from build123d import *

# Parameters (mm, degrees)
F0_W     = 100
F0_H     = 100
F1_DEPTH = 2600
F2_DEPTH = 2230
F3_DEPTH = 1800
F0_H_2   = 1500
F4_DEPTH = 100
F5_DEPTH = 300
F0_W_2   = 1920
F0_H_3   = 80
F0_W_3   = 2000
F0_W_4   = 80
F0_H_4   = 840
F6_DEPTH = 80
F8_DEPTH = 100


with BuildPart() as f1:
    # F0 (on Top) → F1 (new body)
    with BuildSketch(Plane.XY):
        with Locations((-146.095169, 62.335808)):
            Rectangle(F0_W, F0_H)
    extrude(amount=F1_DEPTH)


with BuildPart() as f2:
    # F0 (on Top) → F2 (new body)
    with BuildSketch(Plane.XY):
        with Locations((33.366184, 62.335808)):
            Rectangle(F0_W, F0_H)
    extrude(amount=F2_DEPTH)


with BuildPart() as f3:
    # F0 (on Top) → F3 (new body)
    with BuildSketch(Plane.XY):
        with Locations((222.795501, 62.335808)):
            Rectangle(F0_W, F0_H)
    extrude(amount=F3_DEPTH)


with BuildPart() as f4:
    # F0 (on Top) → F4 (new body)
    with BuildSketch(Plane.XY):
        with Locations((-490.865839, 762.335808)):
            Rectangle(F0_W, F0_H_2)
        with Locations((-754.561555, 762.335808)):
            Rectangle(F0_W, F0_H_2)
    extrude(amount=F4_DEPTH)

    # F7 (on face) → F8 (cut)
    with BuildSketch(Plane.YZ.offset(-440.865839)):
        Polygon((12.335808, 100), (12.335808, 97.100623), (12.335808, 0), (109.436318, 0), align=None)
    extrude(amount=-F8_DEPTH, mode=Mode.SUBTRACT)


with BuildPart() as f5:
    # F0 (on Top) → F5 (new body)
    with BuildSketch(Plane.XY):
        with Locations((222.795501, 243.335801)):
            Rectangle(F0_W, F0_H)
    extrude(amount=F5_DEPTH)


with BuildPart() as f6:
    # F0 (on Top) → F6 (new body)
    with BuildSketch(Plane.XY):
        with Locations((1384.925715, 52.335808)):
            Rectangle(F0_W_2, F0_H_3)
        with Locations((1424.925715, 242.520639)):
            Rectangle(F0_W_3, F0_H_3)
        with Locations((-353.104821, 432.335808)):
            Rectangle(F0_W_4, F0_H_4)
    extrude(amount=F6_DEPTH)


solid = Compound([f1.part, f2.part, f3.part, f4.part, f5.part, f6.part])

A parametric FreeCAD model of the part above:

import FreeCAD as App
import Part
import Sketcher

V = App.Vector
Q = App.Units.Quantity


def add_polygon(sketch, points):
    """Adds a closed chain of lines whose ends are joined by coincident constraints."""
    first, n = sketch.GeometryCount, len(points)
    for a, b in zip(points, points[1:] + points[:1]):
        sketch.addGeometry(Part.LineSegment(App.Vector(*a, 0), App.Vector(*b, 0)), False)
    for i in range(n):
        sketch.addConstraint(Sketcher.Constraint("Coincident", first + i, 2, first + (i + 1) % n, 1))

doc = App.newDocument("Part")
body = doc.addObject("PartDesign::Body", "Body")

sketch1 = body.newObject("Sketcher::SketchObject", "Sketch")
sketch1.AttachmentSupport = (doc.getObject("XY_Plane"), [""])
sketch1.MapMode = "FlatFace"
add_polygon(sketch1, [(-196, 112), (-196, 12), (-96, 12), (-96, 112)])
sketch1.addConstraint(Sketcher.Constraint("Vertical", 0))
sketch1.addConstraint(Sketcher.Constraint("Horizontal", 1))
sketch1.addConstraint(Sketcher.Constraint("Vertical", 2))
sketch1.addConstraint(Sketcher.Constraint("Horizontal", 3))
sketch1.addConstraint(Sketcher.Constraint("Equal", 3, 0))
sketch1.addConstraint(Sketcher.Constraint("DistanceX", 1, 1, 1, 2, Q("100 mm")))
sketch1.addConstraint(Sketcher.Constraint("DistanceX", 0, 2, -1, 1, Q("196.095169 mm")))
sketch1.addConstraint(Sketcher.Constraint("DistanceY", -1, 1, 2, 2, Q("112.335808 mm")))
pad1 = body.newObject("PartDesign::Pad", "Pad")
pad1.Profile = sketch1
pad1.Length = 2600
body2 = doc.addObject("PartDesign::Body", "Body001")

sketch2 = body2.newObject("Sketcher::SketchObject", "Sketch001")
sketch2.AttachmentSupport = (doc.getObject("XY_Plane001"), [""])
sketch2.MapMode = "FlatFace"
add_polygon(sketch2, [(-17, 112), (-17, 12), (83, 12), (83, 112)])
sketch2.addConstraint(Sketcher.Constraint("Vertical", 0))
sketch2.addConstraint(Sketcher.Constraint("Horizontal", 1))
sketch2.addConstraint(Sketcher.Constraint("Vertical", 2))
sketch2.addConstraint(Sketcher.Constraint("Horizontal", 3))
sketch2.addConstraint(Sketcher.Constraint("Equal", 3, 0))
sketch2.addConstraint(Sketcher.Constraint("DistanceX", 1, 1, 1, 2, Q("100 mm")))
sketch2.addConstraint(Sketcher.Constraint("DistanceY", -1, 1, 2, 2, Q("112.335808 mm")))
sketch2.addConstraint(Sketcher.Constraint("DistanceX", 0, 2, -1, 1, Q("16.633816 mm")))
pad2 = body2.newObject("PartDesign::Pad", "Pad001")
pad2.Profile = sketch2
pad2.Length = 2230
body3 = doc.addObject("PartDesign::Body", "Body002")

sketch3 = body3.newObject("Sketcher::SketchObject", "Sketch002")
sketch3.AttachmentSupport = (doc.getObject("XY_Plane002"), [""])
sketch3.MapMode = "FlatFace"
add_polygon(sketch3, [(173, 112), (173, 12), (273, 12), (273, 112)])
sketch3.addConstraint(Sketcher.Constraint("Vertical", 0))
sketch3.addConstraint(Sketcher.Constraint("Horizontal", 1))
sketch3.addConstraint(Sketcher.Constraint("Vertical", 2))
sketch3.addConstraint(Sketcher.Constraint("Horizontal", 3))
sketch3.addConstraint(Sketcher.Constraint("Equal", 3, 0))
sketch3.addConstraint(Sketcher.Constraint("DistanceX", 1, 1, 1, 2, Q("100 mm")))
sketch3.addConstraint(Sketcher.Constraint("DistanceX", -1, 1, 0, 2, Q("172.795501 mm")))
sketch3.addConstraint(Sketcher.Constraint("DistanceY", -1, 1, 2, 2, Q("112.335808 mm")))
pad3 = body3.newObject("PartDesign::Pad", "Pad002")
pad3.Profile = sketch3
pad3.Length = 1800
body4 = doc.addObject("PartDesign::Body", "Body003")
body4.AllowCompound = True

sketch4 = body4.newObject("Sketcher::SketchObject", "Sketch003")
sketch4.AttachmentSupport = (doc.getObject("XY_Plane003"), [""])
sketch4.MapMode = "FlatFace"
add_polygon(sketch4, [(-541, 1512), (-541, 12), (-441, 12), (-441, 1512)])
add_polygon(sketch4, [(-805, 1512), (-805, 12), (-705, 12), (-705, 1512)])
sketch4.addConstraint(Sketcher.Constraint("Vertical", 0))
sketch4.addConstraint(Sketcher.Constraint("Horizontal", 1))
sketch4.addConstraint(Sketcher.Constraint("Vertical", 2))
sketch4.addConstraint(Sketcher.Constraint("Horizontal", 3))
sketch4.addConstraint(Sketcher.Constraint("Vertical", 4))
sketch4.addConstraint(Sketcher.Constraint("Horizontal", 5))
sketch4.addConstraint(Sketcher.Constraint("Vertical", 6))
sketch4.addConstraint(Sketcher.Constraint("Horizontal", 7))
sketch4.addConstraint(Sketcher.Constraint("Horizontal", 1, 2, 4, 2))
sketch4.addConstraint(Sketcher.Constraint("Horizontal", 3, 2, 6, 2))
sketch4.addConstraint(Sketcher.Constraint("Equal", 3, 5))
sketch4.addConstraint(Sketcher.Constraint("DistanceX", 1, 1, 1, 2, Q("100 mm")))
sketch4.addConstraint(Sketcher.Constraint("DistanceY", 0, 2, 0, 1, Q("1500 mm")))
sketch4.addConstraint(Sketcher.Constraint("DistanceX", 0, 2, -1, 1, Q("540.865839 mm")))
sketch4.addConstraint(Sketcher.Constraint("DistanceY", -1, 1, 2, 2, Q("1512.335808 mm")))
sketch4.addConstraint(Sketcher.Constraint("DistanceX", 4, 2, -1, 1, Q("804.561555 mm")))
pad4 = body4.newObject("PartDesign::Pad", "Pad003")
pad4.Profile = sketch4
pad4.Length = 100

sketch5 = body4.newObject("Sketcher::SketchObject", "Sketch004")
sketch5.AttachmentSupport = (doc.getObject("YZ_Plane003"), [""])
sketch5.MapMode = "FlatFace"
sketch5.AttachmentOffset = App.Placement(V(0, 0, -440.865839), App.Rotation())
add_polygon(sketch5, [(12, 100), (12, 0), (109, 0)])
sketch5.addConstraint(Sketcher.Constraint("Vertical", 0))
sketch5.addConstraint(Sketcher.Constraint("Horizontal", 1))
sketch5.addConstraint(Sketcher.Constraint("PointOnObject", 0, 2, -1))
sketch5.addConstraint(Sketcher.Constraint("DistanceY", 0, 2, 0, 1, Q("100 mm")))
sketch5.addConstraint(Sketcher.Constraint("DistanceX", 1, 1, 1, 2, Q("97.10051 mm")))
sketch5.addConstraint(Sketcher.Constraint("DistanceX", -1, 1, 1, 2, Q("109.436318 mm")))
pocket1 = body4.newObject("PartDesign::Pocket", "Pocket")
pocket1.Profile = sketch5
pocket1.Length = 100
body5 = doc.addObject("PartDesign::Body", "Body004")

sketch6 = body5.newObject("Sketcher::SketchObject", "Sketch005")
sketch6.AttachmentSupport = (doc.getObject("XY_Plane004"), [""])
sketch6.MapMode = "FlatFace"
add_polygon(sketch6, [(173, 293), (173, 193), (273, 193), (273, 293)])
sketch6.addConstraint(Sketcher.Constraint("Vertical", 0))
sketch6.addConstraint(Sketcher.Constraint("Horizontal", 1))
sketch6.addConstraint(Sketcher.Constraint("Vertical", 2))
sketch6.addConstraint(Sketcher.Constraint("Horizontal", 3))
sketch6.addConstraint(Sketcher.Constraint("Equal", 3, 0))
sketch6.addConstraint(Sketcher.Constraint("DistanceX", 1, 1, 1, 2, Q("100 mm")))
sketch6.addConstraint(Sketcher.Constraint("DistanceX", -1, 1, 0, 2, Q("172.795501 mm")))
sketch6.addConstraint(Sketcher.Constraint("DistanceY", -1, 1, 0, 2, Q("193.335801 mm")))
pad5 = body5.newObject("PartDesign::Pad", "Pad004")
pad5.Profile = sketch6
pad5.Length = 300
body6 = doc.addObject("PartDesign::Body", "Body005")
body6.AllowCompound = True

sketch7 = body6.newObject("Sketcher::SketchObject", "Sketch006")
sketch7.AttachmentSupport = (doc.getObject("XY_Plane005"), [""])
sketch7.MapMode = "FlatFace"
add_polygon(sketch7, [(425, 92), (425, 12), (2345, 12), (2345, 92)])
add_polygon(sketch7, [(425, 283), (425, 203), (2425, 203), (2425, 283)])
add_polygon(sketch7, [(-393, 852), (-393, 12), (-313, 12), (-313, 852)])
sketch7.addConstraint(Sketcher.Constraint("Vertical", 0))
sketch7.addConstraint(Sketcher.Constraint("Horizontal", 1))
sketch7.addConstraint(Sketcher.Constraint("Vertical", 2))
sketch7.addConstraint(Sketcher.Constraint("Horizontal", 3))
sketch7.addConstraint(Sketcher.Constraint("Vertical", 4))
sketch7.addConstraint(Sketcher.Constraint("Horizontal", 5))
sketch7.addConstraint(Sketcher.Constraint("Vertical", 6))
sketch7.addConstraint(Sketcher.Constraint("Horizontal", 7))
sketch7.addConstraint(Sketcher.Constraint("Vertical", 8))
sketch7.addConstraint(Sketcher.Constraint("Horizontal", 9))
sketch7.addConstraint(Sketcher.Constraint("Vertical", 10))
sketch7.addConstraint(Sketcher.Constraint("Horizontal", 11))
sketch7.addConstraint(Sketcher.Constraint("Horizontal", 1, 2, 8, 2))
sketch7.addConstraint(Sketcher.Constraint("Vertical", 3, 2, 4, 2))
sketch7.addConstraint(Sketcher.Constraint("Equal", 11, 0))
sketch7.addConstraint(Sketcher.Constraint("Equal", 2, 4))
sketch7.addConstraint(Sketcher.Constraint("DistanceX", 1, 1, 1, 2, Q("1920 mm")))
sketch7.addConstraint(Sketcher.Constraint("DistanceX", 5, 1, 5, 2, Q("2000 mm")))
sketch7.addConstraint(Sketcher.Constraint("DistanceX", 9, 1, 9, 2, Q("80 mm")))
sketch7.addConstraint(Sketcher.Constraint("DistanceY", 8, 2, 8, 1, Q("840 mm")))
sketch7.addConstraint(Sketcher.Constraint("DistanceY", -1, 1, 2, 2, Q("92.335808 mm")))
sketch7.addConstraint(Sketcher.Constraint("DistanceY", -1, 1, 4, 2, Q("202.520639 mm")))
sketch7.addConstraint(Sketcher.Constraint("DistanceX", 8, 2, -1, 1, Q("393.104821 mm")))
sketch7.addConstraint(Sketcher.Constraint("DistanceX", -1, 1, 0, 2, Q("424.925715 mm")))
pad6 = body6.newObject("PartDesign::Pad", "Pad005")
pad6.Profile = sketch7
pad6.Length = 80

doc.recompute()
